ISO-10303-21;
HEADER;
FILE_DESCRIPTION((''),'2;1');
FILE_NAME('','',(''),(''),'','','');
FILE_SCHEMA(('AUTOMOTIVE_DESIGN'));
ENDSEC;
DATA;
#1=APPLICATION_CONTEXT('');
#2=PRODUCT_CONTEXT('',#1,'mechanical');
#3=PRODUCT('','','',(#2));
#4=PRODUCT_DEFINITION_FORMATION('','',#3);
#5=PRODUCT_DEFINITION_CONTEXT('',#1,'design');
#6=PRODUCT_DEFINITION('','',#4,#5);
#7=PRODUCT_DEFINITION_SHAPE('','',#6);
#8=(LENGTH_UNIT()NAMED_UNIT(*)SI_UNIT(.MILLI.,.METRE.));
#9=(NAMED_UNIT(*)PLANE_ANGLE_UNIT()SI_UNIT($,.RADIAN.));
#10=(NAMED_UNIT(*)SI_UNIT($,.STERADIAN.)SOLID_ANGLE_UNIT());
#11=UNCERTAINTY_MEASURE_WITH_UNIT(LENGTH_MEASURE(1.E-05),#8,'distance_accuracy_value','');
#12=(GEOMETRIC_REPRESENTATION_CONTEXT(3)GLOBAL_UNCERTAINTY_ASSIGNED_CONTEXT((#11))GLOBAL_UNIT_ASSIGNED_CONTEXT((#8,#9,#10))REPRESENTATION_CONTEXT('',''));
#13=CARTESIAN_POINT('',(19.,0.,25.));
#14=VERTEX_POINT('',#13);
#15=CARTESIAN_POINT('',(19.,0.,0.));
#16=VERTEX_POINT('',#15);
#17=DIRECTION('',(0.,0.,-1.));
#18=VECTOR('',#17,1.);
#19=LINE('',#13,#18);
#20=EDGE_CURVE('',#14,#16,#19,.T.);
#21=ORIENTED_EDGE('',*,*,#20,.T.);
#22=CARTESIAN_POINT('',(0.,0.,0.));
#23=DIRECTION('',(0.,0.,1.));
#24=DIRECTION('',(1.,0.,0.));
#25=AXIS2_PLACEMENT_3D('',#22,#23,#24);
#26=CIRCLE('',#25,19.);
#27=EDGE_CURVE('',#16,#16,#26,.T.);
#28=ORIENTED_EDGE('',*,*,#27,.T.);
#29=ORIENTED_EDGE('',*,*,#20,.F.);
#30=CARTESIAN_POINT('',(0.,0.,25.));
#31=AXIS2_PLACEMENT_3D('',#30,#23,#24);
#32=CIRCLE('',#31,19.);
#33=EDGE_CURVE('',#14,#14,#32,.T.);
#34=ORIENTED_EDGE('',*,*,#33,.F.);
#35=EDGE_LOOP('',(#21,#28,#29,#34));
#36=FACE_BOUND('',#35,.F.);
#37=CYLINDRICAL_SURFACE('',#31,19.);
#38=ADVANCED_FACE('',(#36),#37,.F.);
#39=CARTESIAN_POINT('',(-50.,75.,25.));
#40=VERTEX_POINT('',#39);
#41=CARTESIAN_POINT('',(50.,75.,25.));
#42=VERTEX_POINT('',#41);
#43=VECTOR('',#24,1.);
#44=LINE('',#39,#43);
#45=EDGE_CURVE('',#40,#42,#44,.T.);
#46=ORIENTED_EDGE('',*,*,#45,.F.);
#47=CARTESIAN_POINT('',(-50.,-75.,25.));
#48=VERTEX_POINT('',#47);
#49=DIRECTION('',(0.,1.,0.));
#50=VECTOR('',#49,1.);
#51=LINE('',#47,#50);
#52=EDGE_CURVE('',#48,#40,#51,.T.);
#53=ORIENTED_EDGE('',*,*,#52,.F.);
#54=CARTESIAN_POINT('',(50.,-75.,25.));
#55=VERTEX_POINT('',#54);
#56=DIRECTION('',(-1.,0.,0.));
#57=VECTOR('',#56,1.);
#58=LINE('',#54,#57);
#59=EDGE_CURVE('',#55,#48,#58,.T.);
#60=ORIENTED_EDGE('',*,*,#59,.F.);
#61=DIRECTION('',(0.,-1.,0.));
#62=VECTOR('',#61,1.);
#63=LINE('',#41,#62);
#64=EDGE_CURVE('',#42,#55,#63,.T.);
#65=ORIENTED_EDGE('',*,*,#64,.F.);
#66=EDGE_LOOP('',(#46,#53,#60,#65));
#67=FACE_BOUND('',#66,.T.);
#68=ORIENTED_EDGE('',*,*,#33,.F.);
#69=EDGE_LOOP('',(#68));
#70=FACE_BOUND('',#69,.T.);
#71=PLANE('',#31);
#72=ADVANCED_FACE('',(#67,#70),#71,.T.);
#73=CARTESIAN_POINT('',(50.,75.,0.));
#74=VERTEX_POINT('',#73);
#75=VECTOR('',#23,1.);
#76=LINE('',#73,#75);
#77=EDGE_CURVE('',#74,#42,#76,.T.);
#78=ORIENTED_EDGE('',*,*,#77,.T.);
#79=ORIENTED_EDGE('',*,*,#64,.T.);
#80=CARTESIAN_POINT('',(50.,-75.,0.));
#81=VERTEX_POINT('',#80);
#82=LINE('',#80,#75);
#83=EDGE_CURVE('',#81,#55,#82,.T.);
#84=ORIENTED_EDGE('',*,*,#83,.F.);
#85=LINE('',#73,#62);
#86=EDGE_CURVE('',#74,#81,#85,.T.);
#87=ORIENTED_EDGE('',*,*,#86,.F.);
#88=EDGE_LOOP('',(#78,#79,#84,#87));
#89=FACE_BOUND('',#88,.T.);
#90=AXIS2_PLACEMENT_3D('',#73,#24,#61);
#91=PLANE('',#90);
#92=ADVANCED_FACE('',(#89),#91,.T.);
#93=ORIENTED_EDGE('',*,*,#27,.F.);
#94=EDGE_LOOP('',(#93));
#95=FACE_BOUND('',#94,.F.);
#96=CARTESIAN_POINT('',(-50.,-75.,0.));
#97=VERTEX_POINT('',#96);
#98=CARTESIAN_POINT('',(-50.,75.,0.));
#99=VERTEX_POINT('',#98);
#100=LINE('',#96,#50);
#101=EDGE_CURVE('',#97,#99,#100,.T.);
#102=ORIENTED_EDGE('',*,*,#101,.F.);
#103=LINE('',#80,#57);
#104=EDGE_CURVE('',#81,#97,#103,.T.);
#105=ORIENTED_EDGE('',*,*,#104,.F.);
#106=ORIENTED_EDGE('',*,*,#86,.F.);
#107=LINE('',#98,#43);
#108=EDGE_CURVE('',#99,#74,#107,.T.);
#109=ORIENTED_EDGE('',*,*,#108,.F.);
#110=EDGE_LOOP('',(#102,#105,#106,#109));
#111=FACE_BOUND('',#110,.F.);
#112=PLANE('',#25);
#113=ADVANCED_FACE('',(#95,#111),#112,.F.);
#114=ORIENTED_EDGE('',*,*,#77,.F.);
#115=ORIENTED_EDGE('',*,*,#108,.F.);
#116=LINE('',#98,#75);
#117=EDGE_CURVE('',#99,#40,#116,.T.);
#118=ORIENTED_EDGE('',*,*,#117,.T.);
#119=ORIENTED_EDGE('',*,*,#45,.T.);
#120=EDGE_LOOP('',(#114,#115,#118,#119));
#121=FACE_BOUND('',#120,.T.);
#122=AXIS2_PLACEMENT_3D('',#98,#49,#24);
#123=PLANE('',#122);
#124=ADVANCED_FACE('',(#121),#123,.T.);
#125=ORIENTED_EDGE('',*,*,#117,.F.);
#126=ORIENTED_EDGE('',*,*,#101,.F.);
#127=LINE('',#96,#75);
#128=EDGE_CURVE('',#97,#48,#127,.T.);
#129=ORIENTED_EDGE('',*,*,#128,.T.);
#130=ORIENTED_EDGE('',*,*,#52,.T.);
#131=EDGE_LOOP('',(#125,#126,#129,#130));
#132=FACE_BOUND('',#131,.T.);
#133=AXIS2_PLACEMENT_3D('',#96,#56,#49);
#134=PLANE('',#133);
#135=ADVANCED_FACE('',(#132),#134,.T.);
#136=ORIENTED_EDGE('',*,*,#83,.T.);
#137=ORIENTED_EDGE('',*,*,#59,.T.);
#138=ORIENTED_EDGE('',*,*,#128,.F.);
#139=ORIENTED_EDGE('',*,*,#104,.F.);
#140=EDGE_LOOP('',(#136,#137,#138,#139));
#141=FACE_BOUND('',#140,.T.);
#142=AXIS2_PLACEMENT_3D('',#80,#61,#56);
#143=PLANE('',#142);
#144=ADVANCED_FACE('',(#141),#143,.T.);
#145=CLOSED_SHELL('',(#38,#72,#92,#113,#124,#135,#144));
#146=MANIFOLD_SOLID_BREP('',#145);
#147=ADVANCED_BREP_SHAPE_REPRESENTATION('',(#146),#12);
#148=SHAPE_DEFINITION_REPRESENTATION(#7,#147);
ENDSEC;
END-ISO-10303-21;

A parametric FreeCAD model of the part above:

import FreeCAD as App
import Part
import Sketcher

V = App.Vector
Q = App.Units.Quantity

doc = App.newDocument("Part")
body = doc.addObject("PartDesign::Body", "Body")

sketch1 = body.newObject("Sketcher::SketchObject", "Sketch")
sketch1.AttachmentSupport = (doc.getObject("XY_Plane"), [""])
sketch1.MapMode = "FlatFace"
sketch1.addGeometry(Part.LineSegment(V(50, 75, 0), V(-50, 75, 0)), False)
sketch1.addGeometry(Part.LineSegment(V(-50, 75, 0), V(-50, -75, 0)), False)
sketch1.addGeometry(Part.LineSegment(V(-50, -75, 0), V(50, -75, 0)), False)
sketch1.addGeometry(Part.LineSegment(V(50, -75, 0), V(50, 75, 0)), False)
sketch1.addConstraint(Sketcher.Constraint("Coincident", 0, 2, 1, 1))
sketch1.addConstraint(Sketcher.Constraint("Coincident", 1, 2, 2, 1))
sketch1.addConstraint(Sketcher.Constraint("Coincident", 2, 2, 3, 1))
sketch1.addConstraint(Sketcher.Constraint("Coincident", 3, 2, 0, 1))
sketch1.addConstraint(Sketcher.Constraint("Horizontal", 0))
sketch1.addConstraint(Sketcher.Constraint("Vertical", 1))
sketch1.addConstraint(Sketcher.Constraint("Horizontal", 2))
sketch1.addConstraint(Sketcher.Constraint("Vertical", 3))
sketch1.addConstraint(Sketcher.Constraint("Symmetric", 0, 2, 2, 2, -1, 1))
sketch1.addConstraint(Sketcher.Constraint("DistanceX", 0, 2, 0, 1, Q("100 mm")))
sketch1.addConstraint(Sketcher.Constraint("DistanceY", 1, 2, 1, 1, Q("150 mm")))
pad1 = body.newObject("PartDesign::Pad", "Pad")
pad1.Profile = sketch1
pad1.Length = 25

sketch2 = body.newObject("Sketcher::SketchObject", "Sketch001")
sketch2.AttachmentSupport = (doc.getObject("XY_Plane"), [""])
sketch2.MapMode = "FlatFace"
sketch2.AttachmentOffset = App.Placement(V(0, 0, 25), App.Rotation())
sketch2.addGeometry(Part.Circle(V(0, 0, 0), V(0, 0, 1), 19), False)
sketch2.addConstraint(Sketcher.Constraint("Coincident", 0, 3, -1, 1))
sketch2.addConstraint(Sketcher.Constraint("Diameter", 0, Q("38 mm")))
pocket1 = body.newObject("PartDesign::Pocket", "Pocket")
pocket1.Profile = sketch2
pocket1.Type = "ThroughAll"

doc.recompute()
